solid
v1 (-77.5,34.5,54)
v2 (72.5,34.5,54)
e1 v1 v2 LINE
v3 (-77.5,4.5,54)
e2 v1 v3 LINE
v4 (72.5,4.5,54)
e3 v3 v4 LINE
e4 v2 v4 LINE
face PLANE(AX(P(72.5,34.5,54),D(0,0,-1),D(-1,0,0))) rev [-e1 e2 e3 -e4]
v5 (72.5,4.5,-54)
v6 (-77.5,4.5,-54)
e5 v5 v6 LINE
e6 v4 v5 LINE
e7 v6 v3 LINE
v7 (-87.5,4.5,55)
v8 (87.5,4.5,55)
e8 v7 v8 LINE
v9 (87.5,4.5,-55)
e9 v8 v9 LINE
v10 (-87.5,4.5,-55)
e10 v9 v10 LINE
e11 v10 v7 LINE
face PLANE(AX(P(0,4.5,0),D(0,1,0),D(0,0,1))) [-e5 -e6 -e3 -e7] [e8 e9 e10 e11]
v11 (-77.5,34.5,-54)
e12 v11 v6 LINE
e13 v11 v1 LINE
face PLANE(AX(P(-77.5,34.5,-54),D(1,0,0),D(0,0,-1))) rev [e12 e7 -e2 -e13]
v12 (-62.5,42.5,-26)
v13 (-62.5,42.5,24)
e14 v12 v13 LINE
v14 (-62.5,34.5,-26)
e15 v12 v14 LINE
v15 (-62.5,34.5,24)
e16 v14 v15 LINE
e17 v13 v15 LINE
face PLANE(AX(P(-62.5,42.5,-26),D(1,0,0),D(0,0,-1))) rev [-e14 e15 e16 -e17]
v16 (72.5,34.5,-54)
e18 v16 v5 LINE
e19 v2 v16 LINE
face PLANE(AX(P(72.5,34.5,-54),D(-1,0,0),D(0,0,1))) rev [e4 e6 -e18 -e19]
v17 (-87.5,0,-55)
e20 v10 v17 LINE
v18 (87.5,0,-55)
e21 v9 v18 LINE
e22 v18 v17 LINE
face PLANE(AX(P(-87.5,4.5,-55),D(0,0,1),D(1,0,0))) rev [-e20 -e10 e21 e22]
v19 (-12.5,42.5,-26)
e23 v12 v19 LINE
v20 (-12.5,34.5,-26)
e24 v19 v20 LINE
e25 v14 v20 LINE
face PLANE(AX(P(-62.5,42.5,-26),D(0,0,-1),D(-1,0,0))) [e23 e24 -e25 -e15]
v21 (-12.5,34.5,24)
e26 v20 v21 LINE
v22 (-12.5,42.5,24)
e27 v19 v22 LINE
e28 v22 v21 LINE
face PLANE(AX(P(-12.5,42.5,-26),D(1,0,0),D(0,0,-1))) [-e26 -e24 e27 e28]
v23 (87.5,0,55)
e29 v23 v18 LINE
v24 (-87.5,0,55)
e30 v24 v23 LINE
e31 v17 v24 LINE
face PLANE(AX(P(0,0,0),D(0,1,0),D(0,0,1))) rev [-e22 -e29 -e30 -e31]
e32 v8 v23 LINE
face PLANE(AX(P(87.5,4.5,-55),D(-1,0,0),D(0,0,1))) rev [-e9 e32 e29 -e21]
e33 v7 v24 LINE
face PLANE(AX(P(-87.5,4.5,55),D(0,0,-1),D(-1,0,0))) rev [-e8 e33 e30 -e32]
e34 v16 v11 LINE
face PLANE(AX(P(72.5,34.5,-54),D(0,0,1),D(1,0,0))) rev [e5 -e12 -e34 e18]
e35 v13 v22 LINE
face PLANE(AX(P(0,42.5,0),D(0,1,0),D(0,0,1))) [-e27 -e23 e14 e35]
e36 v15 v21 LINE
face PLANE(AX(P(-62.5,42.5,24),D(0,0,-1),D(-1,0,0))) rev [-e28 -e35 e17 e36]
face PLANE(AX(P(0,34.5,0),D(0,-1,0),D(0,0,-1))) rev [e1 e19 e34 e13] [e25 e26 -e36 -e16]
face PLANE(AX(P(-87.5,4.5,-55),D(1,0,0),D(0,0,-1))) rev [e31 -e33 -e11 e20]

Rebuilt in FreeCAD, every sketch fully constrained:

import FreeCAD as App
import Part
import Sketcher

V = App.Vector
Q = App.Units.Quantity


def add_polygon(sketch, points):
    """Adds a closed chain of lines whose ends are joined by coincident constraints."""
    first, n = sketch.GeometryCount, len(points)
    for a, b in zip(points, points[1:] + points[:1]):
        sketch.addGeometry(Part.LineSegment(App.Vector(*a, 0), App.Vector(*b, 0)), False)
    for i in range(n):
        sketch.addConstraint(Sketcher.Constraint("Coincident", first + i, 2, first + (i + 1) % n, 1))

doc = App.newDocument("Part")
body = doc.addObject("PartDesign::Body", "Body")

# Sketch on XZ plane
sketch1 = body.newObject("Sketcher::SketchObject", "Sketch")
sketch1.AttachmentSupport = (doc.getObject("XZ_Plane"), [""])
sketch1.MapMode = "FlatFace"
add_polygon(sketch1, [(-88, -55), (-88, 55), (88, 55), (88, -55)])  # lines 0-3
sketch1.addConstraint(Sketcher.Constraint("Vertical", 0))
sketch1.addConstraint(Sketcher.Constraint("Horizontal", 1))
sketch1.addConstraint(Sketcher.Constraint("Vertical", 2))
sketch1.addConstraint(Sketcher.Constraint("Horizontal", 3))
sketch1.addConstraint(Sketcher.Constraint("Symmetric", 0, 2, 2, 2, -1, 1))
sketch1.addConstraint(Sketcher.Constraint("DistanceX", 1, 1, 1, 2, Q("175 mm")))
sketch1.addConstraint(Sketcher.Constraint("DistanceY", 0, 1, 0, 2, Q("110 mm")))
pad1 = body.newObject("PartDesign::Pad", "Pad")
pad1.Profile = sketch1
pad1.Length = 4.5
pad1.Reversed = True

# Sketch on XZ plane
sketch2 = body.newObject("Sketcher::SketchObject", "Sketch001")
sketch2.AttachmentSupport = (doc.getObject("XZ_Plane"), [""])
sketch2.MapMode = "FlatFace"
sketch2.AttachmentOffset = App.Placement(V(0, 0, -4.5), App.Rotation())
add_polygon(sketch2, [(-78, -54), (-78, 54), (72, 54), (72, -54)])  # lines 0-3
sketch2.addConstraint(Sketcher.Constraint("Vertical", 0))
sketch2.addConstraint(Sketcher.Constraint("Horizontal", 1))
sketch2.addConstraint(Sketcher.Constraint("Vertical", 2))
sketch2.addConstraint(Sketcher.Constraint("Horizontal", 3))
sketch2.addConstraint(Sketcher.Constraint("DistanceX", 1, 1, 1, 2, Q("150 mm")))
sketch2.addConstraint(Sketcher.Constraint("DistanceY", 0, 1, 0, 2, Q("108 mm")))
sketch2.addConstraint(Sketcher.Constraint("DistanceY", -1, 1, 0, 2, Q("54 mm")))
sketch2.addConstraint(Sketcher.Constraint("DistanceX", 0, 2, -1, 1, Q("77.5 mm")))
pad2 = body.newObject("PartDesign::Pad", "Pad001")
pad2.Profile = sketch2
pad2.Length = 30
pad2.Reversed = True

# Sketch on XZ plane
sketch3 = body.newObject("Sketcher::SketchObject", "Sketch002")
sketch3.AttachmentSupport = (doc.getObject("XZ_Plane"), [""])
sketch3.MapMode = "FlatFace"
sketch3.AttachmentOffset = App.Placement(V(0, 0, -34.5), App.Rotation())
add_polygon(sketch3, [(-62, -26), (-62, 24), (-12, 24), (-12, -26)])  # lines 0-3
sketch3.addConstraint(Sketcher.Constraint("Vertical", 0))
sketch3.addConstraint(Sketcher.Constraint("Horizontal", 1))
sketch3.addConstraint(Sketcher.Constraint("Vertical", 2))
sketch3.addConstraint(Sketcher.Constraint("Horizontal", 3))
sketch3.addConstraint(Sketcher.Constraint("Equal", 3, 0))
sketch3.addConstraint(Sketcher.Constraint("DistanceX", 1, 1, 1, 2, Q("50 mm")))
sketch3.addConstraint(Sketcher.Constraint("DistanceY", -1, 1, 0, 2, Q("24 mm")))
sketch3.addConstraint(Sketcher.Constraint("DistanceX", 0, 2, -1, 1, Q("62.5 mm")))
pad3 = body.newObject("PartDesign::Pad", "Pad002")
pad3.Profile = sketch3
pad3.Length = 8
pad3.Reversed = True

doc.recompute()
